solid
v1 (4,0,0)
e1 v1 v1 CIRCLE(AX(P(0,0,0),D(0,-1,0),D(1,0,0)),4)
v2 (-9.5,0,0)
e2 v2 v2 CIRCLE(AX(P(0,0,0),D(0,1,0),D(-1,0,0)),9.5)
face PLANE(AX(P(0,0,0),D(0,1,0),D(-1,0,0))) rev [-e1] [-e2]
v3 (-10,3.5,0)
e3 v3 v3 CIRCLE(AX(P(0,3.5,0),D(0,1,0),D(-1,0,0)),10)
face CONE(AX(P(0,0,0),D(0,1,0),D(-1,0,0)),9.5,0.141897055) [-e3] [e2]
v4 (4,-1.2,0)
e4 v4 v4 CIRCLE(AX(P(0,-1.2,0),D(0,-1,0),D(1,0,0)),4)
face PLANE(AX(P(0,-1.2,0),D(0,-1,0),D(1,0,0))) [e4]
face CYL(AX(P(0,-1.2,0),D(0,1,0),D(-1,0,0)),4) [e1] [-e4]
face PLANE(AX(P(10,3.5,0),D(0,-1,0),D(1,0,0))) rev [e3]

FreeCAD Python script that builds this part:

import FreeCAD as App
import Part
import Sketcher

V = App.Vector
Q = App.Units.Quantity

doc = App.newDocument("Part")
body = doc.addObject("PartDesign::Body", "Body")

sketch1 = body.newObject("Sketcher::SketchObject", "Sketch")
sketch1.AttachmentSupport = (doc.getObject("XY_Plane"), [""])
sketch1.MapMode = "FlatFace"
sketch1.addGeometry([
    Part.LineSegment(V(0, 0, 0), V(9.5, 0, 0)),
    Part.LineSegment(V(9.5, 0, 0), V(10, 3.5, 0)),
    Part.LineSegment(V(10, 3.5, 0), V(0, 3.5, 0)),
    Part.LineSegment(V(0, 3.5, 0), V(0, 0, 0)),
], False)
sketch1.addConstraint([
    Sketcher.Constraint("Coincident", 0, 2, 1, 1),
    Sketcher.Constraint("Coincident", 1, 2, 2, 1),
    Sketcher.Constraint("Coincident", 2, 2, 3, 1),
    Sketcher.Constraint("Coincident", 3, 2, 0, 1),
    Sketcher.Constraint("Horizontal", 0),
    Sketcher.Constraint("Horizontal", 2),
    Sketcher.Constraint("Vertical", 3),
    Sketcher.Constraint("Coincident", 3, 2, -1, 1),
    Sketcher.Constraint("DistanceX", 2, 2, 2, 1, Q("10 mm")),
    Sketcher.Constraint("DistanceX", 0, 1, 0, 2, Q("9.5 mm")),
    Sketcher.Constraint("DistanceY", 3, 2, 3, 1, Q("3.5 mm")),
])
revolution = body.newObject("PartDesign::Revolution", "Revolution")
revolution.Profile = sketch1
revolution.ReferenceAxis = (sketch1, ["V_Axis"])
revolution.Angle = 360

sketch2 = body.newObject("Sketcher::SketchObject", "Sketch001")
sketch2.AttachmentSupport = (doc.getObject("XZ_Plane"), [""])
sketch2.MapMode = "FlatFace"
sketch2.addGeometry(Part.Circle(V(0, 0, 0), V(0, 0, 1), 4), False)
sketch2.addConstraint([
    Sketcher.Constraint("Coincident", 0, 3, -1, 1),
    Sketcher.Constraint("Diameter", 0, Q("8 mm")),
])
pad1 = body.newObject("PartDesign::Pad", "Pad")
pad1.Profile = sketch2
pad1.Length = 1.2

doc.recompute()
